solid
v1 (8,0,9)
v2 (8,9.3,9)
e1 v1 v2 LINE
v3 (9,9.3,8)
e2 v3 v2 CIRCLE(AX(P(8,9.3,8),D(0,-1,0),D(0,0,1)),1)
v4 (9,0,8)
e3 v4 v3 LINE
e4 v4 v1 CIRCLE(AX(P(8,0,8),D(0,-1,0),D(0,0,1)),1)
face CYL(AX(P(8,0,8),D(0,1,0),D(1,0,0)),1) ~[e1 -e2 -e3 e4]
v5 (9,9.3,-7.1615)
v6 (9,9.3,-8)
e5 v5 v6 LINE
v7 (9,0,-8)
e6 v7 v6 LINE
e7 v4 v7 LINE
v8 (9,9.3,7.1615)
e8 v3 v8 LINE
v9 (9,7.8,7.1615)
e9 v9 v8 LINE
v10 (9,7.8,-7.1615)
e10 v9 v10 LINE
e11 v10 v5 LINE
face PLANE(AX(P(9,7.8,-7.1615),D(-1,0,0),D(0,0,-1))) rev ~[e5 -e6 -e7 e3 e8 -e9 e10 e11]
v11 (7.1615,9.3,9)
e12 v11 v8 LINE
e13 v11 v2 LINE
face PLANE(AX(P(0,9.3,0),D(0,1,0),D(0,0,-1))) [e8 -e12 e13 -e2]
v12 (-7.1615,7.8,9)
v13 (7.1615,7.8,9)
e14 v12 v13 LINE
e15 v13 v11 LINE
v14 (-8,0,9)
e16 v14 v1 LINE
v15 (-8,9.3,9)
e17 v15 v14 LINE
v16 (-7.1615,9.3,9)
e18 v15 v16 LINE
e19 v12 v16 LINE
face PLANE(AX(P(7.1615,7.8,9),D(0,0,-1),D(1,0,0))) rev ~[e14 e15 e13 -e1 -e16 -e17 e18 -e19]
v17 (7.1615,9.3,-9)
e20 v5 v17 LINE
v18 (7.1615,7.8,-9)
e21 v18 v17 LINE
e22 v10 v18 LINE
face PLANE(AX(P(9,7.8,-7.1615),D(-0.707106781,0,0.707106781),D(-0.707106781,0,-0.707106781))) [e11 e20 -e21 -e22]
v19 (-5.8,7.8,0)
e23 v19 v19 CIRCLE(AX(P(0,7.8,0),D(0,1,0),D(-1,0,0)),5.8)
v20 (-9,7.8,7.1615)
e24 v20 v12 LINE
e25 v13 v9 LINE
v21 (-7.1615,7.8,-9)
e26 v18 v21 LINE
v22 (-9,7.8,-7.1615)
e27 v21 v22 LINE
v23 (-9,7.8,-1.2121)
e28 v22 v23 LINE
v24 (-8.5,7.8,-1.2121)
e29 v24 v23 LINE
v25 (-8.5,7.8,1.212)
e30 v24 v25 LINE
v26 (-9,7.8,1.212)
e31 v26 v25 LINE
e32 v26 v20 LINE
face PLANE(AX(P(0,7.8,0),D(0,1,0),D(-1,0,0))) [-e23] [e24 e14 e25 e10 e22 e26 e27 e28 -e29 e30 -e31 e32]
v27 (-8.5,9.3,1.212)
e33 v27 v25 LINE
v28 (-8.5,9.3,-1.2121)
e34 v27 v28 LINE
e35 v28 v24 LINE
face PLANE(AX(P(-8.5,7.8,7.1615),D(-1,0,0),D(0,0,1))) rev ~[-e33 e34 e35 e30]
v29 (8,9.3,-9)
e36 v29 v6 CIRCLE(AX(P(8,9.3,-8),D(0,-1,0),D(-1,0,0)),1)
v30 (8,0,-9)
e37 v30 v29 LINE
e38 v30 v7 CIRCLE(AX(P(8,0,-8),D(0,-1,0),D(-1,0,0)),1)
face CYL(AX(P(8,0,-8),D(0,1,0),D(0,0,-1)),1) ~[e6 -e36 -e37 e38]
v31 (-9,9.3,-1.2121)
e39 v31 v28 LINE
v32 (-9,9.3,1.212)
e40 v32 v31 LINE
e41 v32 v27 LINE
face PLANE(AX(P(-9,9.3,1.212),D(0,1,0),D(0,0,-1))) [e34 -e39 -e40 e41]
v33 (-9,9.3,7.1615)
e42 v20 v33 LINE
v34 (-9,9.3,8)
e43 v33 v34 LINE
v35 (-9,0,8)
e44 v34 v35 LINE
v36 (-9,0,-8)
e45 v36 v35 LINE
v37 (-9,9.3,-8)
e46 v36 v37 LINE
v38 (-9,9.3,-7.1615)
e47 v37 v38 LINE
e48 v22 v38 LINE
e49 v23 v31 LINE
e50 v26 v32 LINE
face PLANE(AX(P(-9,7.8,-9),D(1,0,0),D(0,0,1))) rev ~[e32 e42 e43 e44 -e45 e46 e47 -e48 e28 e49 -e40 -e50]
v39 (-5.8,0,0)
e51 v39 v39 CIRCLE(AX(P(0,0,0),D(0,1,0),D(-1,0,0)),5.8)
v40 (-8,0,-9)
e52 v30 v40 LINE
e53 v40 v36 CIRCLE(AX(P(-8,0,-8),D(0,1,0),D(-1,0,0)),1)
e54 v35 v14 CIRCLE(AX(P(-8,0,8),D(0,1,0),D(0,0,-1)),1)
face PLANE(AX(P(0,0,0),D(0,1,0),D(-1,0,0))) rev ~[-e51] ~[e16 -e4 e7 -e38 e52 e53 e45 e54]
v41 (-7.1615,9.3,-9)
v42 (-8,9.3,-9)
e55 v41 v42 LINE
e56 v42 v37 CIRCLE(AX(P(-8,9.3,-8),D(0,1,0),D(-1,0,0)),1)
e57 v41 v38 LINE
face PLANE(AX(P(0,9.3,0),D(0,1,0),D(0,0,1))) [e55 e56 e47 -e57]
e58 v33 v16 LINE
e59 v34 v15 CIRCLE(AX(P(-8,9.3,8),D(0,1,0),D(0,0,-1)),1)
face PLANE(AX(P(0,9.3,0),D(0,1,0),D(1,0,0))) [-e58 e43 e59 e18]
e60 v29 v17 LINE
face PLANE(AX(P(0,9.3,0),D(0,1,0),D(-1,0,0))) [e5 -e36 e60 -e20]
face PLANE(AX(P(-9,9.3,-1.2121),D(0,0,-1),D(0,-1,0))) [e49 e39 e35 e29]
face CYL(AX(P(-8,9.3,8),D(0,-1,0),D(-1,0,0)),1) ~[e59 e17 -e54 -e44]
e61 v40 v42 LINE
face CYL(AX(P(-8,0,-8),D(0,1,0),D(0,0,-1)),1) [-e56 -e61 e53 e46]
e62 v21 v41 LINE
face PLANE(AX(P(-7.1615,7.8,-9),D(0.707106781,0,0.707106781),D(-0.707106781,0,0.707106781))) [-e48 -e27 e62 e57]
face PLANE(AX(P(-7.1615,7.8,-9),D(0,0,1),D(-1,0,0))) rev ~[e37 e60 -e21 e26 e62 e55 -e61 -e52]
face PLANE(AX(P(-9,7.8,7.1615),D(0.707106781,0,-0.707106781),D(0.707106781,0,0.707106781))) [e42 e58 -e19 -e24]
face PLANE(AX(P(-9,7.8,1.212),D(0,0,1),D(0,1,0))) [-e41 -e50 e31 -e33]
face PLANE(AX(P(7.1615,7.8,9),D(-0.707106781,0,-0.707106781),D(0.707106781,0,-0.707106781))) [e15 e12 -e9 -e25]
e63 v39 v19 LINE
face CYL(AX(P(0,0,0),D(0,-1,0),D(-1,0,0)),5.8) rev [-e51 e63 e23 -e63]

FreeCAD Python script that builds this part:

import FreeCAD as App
import Part
import Sketcher
Q = App.Units.Quantity


def edges_at(feature, points):
    """Names of the edges that pass closest to the given points."""
    edges = feature.Shape.Edges
    near = lambda p: min(range(len(edges)), key=lambda i: edges[i].distToShape(Part.Vertex(*p))[0])
    return sorted({f"Edge{near(p) + 1}" for p in points})

doc = App.newDocument("Part")
body = doc.addObject("PartDesign::Body", "Body")

sketch1 = body.newObject("Sketcher::SketchObject", "Sketch")
sketch1.AttachmentSupport = (doc.getObject("XZ_Plane"), [""])
sketch1.MapMode = "FlatFace"
sketch1.addGeometry([
    Part.LineSegment(App.Vector(9, 9, 0), App.Vector(9, -9, 0)),
    Part.LineSegment(App.Vector(9, -9, 0), App.Vector(-9, -9, 0)),
    Part.LineSegment(App.Vector(-9, -9, 0), App.Vector(-9, 9, 0)),
    Part.LineSegment(App.Vector(-9, 9, 0), App.Vector(9, 9, 0)),
    Part.Circle(App.Vector(0, 0, 0), App.Vector(0, 0, 1), 5.8),
], False)
sketch1.addConstraint([
    Sketcher.Constraint("Coincident", 0, 2, 1, 1),
    Sketcher.Constraint("Coincident", 1, 2, 2, 1),
    Sketcher.Constraint("Coincident", 2, 2, 3, 1),
    Sketcher.Constraint("Coincident", 3, 2, 0, 1),
    Sketcher.Constraint("Vertical", 0),
    Sketcher.Constraint("Horizontal", 1),
    Sketcher.Constraint("Vertical", 2),
    Sketcher.Constraint("Horizontal", 3),
    Sketcher.Constraint("Coincident", 4, 3, -1, 1),
    Sketcher.Constraint("Symmetric", 0, 2, 2, 2, -1, 1),
    Sketcher.Constraint("Equal", 3, 0),
    Sketcher.Constraint("Diameter", 4, Q("11.6 mm")),
    Sketcher.Constraint("DistanceX", 1, 2, 1, 1, Q("18 mm")),
])
pad1 = body.newObject("PartDesign::Pad", "Pad")
pad1.Profile = sketch1
pad1.Length = 7.8
pad1.Reversed = True

sketch2 = body.newObject("Sketcher::SketchObject", "Sketch001")
sketch2.AttachmentSupport = (doc.getObject("XZ_Plane"), [""])
sketch2.MapMode = "FlatFace"
sketch2.AttachmentOffset = App.Placement(App.Vector(0, 0, -7.8), App.Rotation())
sketch2.addGeometry([
    Part.LineSegment(App.Vector(-7.1615, 9, 0), App.Vector(-9, 7.1615, 0)),
    Part.LineSegment(App.Vector(-9, 7.1615, 0), App.Vector(-9, 9, 0)),
    Part.LineSegment(App.Vector(-9, 9, 0), App.Vector(-7.1615, 9, 0)),
], False)
sketch2.addConstraint([
    Sketcher.Constraint("Coincident", 0, 2, 1, 1),
    Sketcher.Constraint("Coincident", 1, 2, 2, 1),
    Sketcher.Constraint("Coincident", 2, 2, 0, 1),
    Sketcher.Constraint("Vertical", 1),
    Sketcher.Constraint("Horizontal", 2),
    Sketcher.Constraint("Equal", 2, 1),
    Sketcher.Constraint("DistanceX", 0, 2, -1, 1, Q("9 mm")),
    Sketcher.Constraint("DistanceY", -1, 1, 1, 2, Q("9 mm")),
    Sketcher.Constraint("Distance", 0, Q("2.6 mm")),
])
pad2 = body.newObject("PartDesign::Pad", "Pad001")
pad2.Profile = sketch2
pad2.Length = 1.5
pad2.Reversed = True
doc.recompute()

polarpattern = body.newObject("PartDesign::PolarPattern", "PolarPattern")
polarpattern.Originals = [pad2]
polarpattern.Axis = (doc.getObject("Y_Axis"), [""])
polarpattern.Angle = 360
polarpattern.Occurrences = 4
body.Tip = polarpattern
doc.recompute()

fillet = body.newObject("PartDesign::Fillet", "Fillet")
fillet.Base = (polarpattern, edges_at(polarpattern, [
    (-9, 4.65, 9),
    (9, 4.65, 9),
    (9, 4.65, -9),
    (-9, 4.65, -9),
]))
fillet.Radius = 1

sketch3 = body.newObject("Sketcher::SketchObject", "Sketch002")
sketch3.AttachmentSupport = (doc.getObject("YZ_Plane"), [""])
sketch3.MapMode = "FlatFace"
sketch3.AttachmentOffset = App.Placement(App.Vector(0, 0, -9), App.Rotation())
sketch3.addGeometry([
    Part.LineSegment(App.Vector(9.3, -1.2121, 0), App.Vector(6.3, -1.2121, 0)),
    Part.LineSegment(App.Vector(6.3, -1.2121, 0), App.Vector(6.3, 1.212, 0)),
    Part.LineSegment(App.Vector(6.3, 1.212, 0), App.Vector(9.3, 1.212, 0)),
    Part.LineSegment(App.Vector(9.3, 1.212, 0), App.Vector(9.3, -1.2121, 0)),
], False)
sketch3.addConstraint([
    Sketcher.Constraint("Coincident", 0, 2, 1, 1),
    Sketcher.Constraint("Coincident", 1, 2, 2, 1),
    Sketcher.Constraint("Coincident", 2, 2, 3, 1),
    Sketcher.Constraint("Coincident", 3, 2, 0, 1),
    Sketcher.Constraint("Horizontal", 0),
    Sketcher.Constraint("Vertical", 1),
    Sketcher.Constraint("Horizontal", 2),
    Sketcher.Constraint("Vertical", 3),
    Sketcher.Constraint("DistanceX", 0, 2, 0, 1, Q("3 mm")),
    Sketcher.Constraint("DistanceX", -1, 1, 0, 2, Q("6.3 mm")),
    Sketcher.Constraint("DistanceY", 1, 1, 1, 2, Q("2.424 mm")),
    Sketcher.Constraint("DistanceY", 0, 2, -1, 1, Q("1.212 mm")),
])
pad3 = body.newObject("PartDesign::Pad", "Pad002")
pad3.Profile = sketch3
pad3.Length = 0.5

doc.recompute()
